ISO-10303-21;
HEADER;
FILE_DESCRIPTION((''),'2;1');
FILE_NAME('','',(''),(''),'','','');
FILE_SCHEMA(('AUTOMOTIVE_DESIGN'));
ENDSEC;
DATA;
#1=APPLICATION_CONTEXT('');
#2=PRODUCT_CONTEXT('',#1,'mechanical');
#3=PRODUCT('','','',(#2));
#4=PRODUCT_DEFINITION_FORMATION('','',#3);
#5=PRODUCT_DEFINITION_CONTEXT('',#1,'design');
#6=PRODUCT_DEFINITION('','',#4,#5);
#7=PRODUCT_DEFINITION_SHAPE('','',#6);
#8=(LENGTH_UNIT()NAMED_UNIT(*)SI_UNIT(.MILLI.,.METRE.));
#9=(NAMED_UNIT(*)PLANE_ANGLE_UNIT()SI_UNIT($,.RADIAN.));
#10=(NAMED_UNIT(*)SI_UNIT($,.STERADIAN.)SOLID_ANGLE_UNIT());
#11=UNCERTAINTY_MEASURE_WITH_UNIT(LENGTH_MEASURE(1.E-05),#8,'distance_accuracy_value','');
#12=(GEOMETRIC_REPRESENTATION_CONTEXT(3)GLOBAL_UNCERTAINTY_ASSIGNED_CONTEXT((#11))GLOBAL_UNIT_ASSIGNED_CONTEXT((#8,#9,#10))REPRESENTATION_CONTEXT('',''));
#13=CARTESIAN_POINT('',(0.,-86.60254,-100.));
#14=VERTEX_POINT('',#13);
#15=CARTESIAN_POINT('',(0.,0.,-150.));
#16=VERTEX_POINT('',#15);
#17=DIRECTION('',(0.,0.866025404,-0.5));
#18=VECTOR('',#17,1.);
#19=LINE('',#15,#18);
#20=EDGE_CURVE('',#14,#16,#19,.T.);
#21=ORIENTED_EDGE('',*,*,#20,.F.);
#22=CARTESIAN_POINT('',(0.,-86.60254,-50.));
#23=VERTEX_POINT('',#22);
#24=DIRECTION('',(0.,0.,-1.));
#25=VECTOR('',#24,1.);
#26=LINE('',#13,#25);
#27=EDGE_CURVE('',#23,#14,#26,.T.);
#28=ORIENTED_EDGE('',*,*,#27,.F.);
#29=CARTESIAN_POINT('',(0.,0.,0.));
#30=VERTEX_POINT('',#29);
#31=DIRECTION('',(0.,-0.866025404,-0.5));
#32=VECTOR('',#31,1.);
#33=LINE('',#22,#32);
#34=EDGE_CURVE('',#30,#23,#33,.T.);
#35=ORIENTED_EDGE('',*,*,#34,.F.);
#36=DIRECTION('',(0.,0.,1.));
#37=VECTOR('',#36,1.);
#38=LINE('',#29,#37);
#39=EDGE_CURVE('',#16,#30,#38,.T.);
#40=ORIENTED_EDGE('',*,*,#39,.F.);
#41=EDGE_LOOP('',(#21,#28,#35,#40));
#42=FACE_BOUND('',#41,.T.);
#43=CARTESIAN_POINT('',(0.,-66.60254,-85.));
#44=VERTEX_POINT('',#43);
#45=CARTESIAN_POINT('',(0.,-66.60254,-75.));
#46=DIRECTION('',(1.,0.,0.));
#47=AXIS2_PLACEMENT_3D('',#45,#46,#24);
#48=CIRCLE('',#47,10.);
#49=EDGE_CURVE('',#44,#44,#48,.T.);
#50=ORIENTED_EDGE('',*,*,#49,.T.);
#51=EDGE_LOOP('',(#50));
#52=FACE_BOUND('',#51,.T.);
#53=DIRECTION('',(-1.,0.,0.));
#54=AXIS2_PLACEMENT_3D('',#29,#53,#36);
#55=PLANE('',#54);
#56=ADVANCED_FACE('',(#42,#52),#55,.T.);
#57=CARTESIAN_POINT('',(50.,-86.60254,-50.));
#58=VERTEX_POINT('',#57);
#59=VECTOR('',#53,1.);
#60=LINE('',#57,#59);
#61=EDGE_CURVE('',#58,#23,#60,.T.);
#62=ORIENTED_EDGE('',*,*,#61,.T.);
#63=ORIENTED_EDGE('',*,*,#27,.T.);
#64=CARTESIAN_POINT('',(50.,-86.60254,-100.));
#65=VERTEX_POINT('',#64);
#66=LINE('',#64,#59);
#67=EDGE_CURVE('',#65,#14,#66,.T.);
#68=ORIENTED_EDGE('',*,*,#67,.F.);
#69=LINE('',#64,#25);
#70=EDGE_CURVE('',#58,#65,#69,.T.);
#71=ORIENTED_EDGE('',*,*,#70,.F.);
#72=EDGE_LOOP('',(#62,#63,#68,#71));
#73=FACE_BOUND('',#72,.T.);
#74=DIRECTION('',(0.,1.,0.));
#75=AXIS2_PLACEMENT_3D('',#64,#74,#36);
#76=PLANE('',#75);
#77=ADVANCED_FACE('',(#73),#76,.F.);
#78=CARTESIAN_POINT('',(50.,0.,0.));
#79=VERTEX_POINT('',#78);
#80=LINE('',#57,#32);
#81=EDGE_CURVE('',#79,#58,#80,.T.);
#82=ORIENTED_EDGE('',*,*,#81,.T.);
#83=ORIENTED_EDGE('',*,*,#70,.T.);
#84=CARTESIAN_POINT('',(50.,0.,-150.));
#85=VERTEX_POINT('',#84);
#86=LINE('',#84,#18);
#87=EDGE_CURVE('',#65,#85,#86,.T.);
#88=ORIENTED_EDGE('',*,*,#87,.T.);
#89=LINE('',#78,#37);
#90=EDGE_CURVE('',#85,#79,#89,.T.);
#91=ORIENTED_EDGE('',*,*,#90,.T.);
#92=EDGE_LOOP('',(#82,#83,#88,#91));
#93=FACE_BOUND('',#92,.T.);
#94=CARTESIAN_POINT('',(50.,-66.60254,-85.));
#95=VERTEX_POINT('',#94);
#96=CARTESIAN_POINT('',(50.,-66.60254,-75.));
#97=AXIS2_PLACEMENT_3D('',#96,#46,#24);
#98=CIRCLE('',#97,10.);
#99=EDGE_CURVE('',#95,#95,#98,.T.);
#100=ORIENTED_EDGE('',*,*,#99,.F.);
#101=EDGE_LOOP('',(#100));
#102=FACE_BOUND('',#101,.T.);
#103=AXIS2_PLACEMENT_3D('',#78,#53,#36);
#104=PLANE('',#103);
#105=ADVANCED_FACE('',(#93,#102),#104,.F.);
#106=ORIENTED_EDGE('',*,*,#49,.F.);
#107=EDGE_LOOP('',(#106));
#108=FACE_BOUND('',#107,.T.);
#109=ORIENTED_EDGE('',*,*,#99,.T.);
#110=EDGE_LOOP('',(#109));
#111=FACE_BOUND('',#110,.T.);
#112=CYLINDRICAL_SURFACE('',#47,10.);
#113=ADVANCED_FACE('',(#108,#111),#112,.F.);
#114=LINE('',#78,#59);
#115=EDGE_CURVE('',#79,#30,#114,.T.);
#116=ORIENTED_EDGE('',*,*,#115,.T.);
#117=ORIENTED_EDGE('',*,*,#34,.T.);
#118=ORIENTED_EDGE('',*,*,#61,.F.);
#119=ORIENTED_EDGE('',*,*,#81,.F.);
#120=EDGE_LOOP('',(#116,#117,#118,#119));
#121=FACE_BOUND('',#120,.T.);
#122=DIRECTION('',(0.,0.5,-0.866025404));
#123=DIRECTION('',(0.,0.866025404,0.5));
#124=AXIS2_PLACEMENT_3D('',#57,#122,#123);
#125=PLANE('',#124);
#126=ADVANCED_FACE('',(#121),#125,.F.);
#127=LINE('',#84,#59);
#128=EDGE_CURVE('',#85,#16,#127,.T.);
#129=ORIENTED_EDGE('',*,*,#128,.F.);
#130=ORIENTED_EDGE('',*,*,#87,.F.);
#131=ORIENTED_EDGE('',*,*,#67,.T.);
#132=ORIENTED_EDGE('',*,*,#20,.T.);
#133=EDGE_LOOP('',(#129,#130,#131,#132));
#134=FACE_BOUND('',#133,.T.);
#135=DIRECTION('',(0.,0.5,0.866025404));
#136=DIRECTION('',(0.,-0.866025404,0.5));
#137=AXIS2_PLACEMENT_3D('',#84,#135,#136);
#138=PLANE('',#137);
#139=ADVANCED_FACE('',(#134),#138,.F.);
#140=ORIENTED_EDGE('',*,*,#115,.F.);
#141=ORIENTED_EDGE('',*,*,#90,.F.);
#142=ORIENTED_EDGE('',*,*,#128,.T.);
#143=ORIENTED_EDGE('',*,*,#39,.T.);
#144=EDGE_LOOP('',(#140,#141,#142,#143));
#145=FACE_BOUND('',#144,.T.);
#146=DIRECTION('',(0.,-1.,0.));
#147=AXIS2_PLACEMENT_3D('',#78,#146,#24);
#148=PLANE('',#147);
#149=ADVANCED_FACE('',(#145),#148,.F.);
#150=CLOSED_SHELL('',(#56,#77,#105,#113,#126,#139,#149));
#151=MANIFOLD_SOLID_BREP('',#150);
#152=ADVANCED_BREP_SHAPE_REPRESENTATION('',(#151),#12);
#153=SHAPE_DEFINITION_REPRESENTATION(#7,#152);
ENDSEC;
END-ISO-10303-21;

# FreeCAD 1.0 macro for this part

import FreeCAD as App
import Part
import Sketcher

V = App.Vector
Q = App.Units.Quantity

doc = App.newDocument("Part")
params = doc.addObject("Spreadsheet::Sheet", "Params")
for row, (alias, value) in enumerate([
    ("sketch1_height", "150 mm"),
    ("sketch1_height2", "50 mm"),
    ("pad1_length", "50 mm"),
    ("sketch2_diameter", "20 mm"),
], start=1):
    params.set(f"A{row}", alias)
    params.set(f"B{row}", "=" + value)
    params.setAlias(f"B{row}", alias)

body = doc.addObject("PartDesign::Body", "Body")

# Sketch on YZ plane
sketch1 = doc.addObject("Sketcher::SketchObject", "Sketch")
body.addObject(sketch1)
sketch1.AttachmentSupport = (doc.YZ_Plane, [""])
sketch1.MapMode = "FlatFace"
sketch1.addGeometry([
    Part.LineSegment(V(0, -150, 0), V(0, 0, 0)),
    Part.LineSegment(V(0, 0, 0), V(-87, -50, 0)),
    Part.LineSegment(V(-87, -50, 0), V(-87, -100, 0)),
    Part.LineSegment(V(-87, -100, 0), V(0, -150, 0)),
], False)
sketch1.addConstraint([
    Sketcher.Constraint("Coincident", 0, 2, 1, 1),
    Sketcher.Constraint("Coincident", 1, 2, 2, 1),
    Sketcher.Constraint("Coincident", 2, 2, 3, 1),
    Sketcher.Constraint("Coincident", 3, 2, 0, 1),
    Sketcher.Constraint("Vertical", 0),
    Sketcher.Constraint("Vertical", 2),
    Sketcher.Constraint("Coincident", 0, 2, -1, 1),
    Sketcher.Constraint("Equal", 1, 3),
    Sketcher.Constraint("DistanceY", 0, 1, 0, 2, 150.0),
    Sketcher.Constraint("DistanceY", 2, 2, 2, 1, 50.0),
    Sketcher.Constraint("Angle", 1, Q("-150 deg")),
])
sketch1.setExpression("Constraints[8]", "Params.sketch1_height")
sketch1.setExpression("Constraints[9]", "Params.sketch1_height2")
pad1 = doc.addObject("PartDesign::Pad", "Pad")
body.addObject(pad1)
pad1.Profile = sketch1
pad1.setExpression("Length", "Params.pad1_length")

# Sketch on YZ plane
sketch2 = doc.addObject("Sketcher::SketchObject", "Sketch001")
body.addObject(sketch2)
sketch2.AttachmentSupport = (doc.YZ_Plane, [""])
sketch2.MapMode = "FlatFace"
sketch2.AttachmentOffset = App.Placement(V(0, 0, 50), App.Rotation())
sketch2.addGeometry(Part.Circle(V(-67, -75, 0), V(0, 0, 1), 10), False)
sketch2.addConstraint([
    Sketcher.Constraint("Diameter", 0, 20.0),
    Sketcher.Constraint("DistanceY", 0, 3, -1, 1, 75.0),
    Sketcher.Constraint("DistanceX", 0, 3, -1, 1, 66.60254),
])
sketch2.setExpression("Constraints[0]", "Params.sketch2_diameter")
pocket1 = doc.addObject("PartDesign::Pocket", "Pocket")
body.addObject(pocket1)
pocket1.Profile = sketch2
pocket1.Type = "ThroughAll"

doc.recompute()
